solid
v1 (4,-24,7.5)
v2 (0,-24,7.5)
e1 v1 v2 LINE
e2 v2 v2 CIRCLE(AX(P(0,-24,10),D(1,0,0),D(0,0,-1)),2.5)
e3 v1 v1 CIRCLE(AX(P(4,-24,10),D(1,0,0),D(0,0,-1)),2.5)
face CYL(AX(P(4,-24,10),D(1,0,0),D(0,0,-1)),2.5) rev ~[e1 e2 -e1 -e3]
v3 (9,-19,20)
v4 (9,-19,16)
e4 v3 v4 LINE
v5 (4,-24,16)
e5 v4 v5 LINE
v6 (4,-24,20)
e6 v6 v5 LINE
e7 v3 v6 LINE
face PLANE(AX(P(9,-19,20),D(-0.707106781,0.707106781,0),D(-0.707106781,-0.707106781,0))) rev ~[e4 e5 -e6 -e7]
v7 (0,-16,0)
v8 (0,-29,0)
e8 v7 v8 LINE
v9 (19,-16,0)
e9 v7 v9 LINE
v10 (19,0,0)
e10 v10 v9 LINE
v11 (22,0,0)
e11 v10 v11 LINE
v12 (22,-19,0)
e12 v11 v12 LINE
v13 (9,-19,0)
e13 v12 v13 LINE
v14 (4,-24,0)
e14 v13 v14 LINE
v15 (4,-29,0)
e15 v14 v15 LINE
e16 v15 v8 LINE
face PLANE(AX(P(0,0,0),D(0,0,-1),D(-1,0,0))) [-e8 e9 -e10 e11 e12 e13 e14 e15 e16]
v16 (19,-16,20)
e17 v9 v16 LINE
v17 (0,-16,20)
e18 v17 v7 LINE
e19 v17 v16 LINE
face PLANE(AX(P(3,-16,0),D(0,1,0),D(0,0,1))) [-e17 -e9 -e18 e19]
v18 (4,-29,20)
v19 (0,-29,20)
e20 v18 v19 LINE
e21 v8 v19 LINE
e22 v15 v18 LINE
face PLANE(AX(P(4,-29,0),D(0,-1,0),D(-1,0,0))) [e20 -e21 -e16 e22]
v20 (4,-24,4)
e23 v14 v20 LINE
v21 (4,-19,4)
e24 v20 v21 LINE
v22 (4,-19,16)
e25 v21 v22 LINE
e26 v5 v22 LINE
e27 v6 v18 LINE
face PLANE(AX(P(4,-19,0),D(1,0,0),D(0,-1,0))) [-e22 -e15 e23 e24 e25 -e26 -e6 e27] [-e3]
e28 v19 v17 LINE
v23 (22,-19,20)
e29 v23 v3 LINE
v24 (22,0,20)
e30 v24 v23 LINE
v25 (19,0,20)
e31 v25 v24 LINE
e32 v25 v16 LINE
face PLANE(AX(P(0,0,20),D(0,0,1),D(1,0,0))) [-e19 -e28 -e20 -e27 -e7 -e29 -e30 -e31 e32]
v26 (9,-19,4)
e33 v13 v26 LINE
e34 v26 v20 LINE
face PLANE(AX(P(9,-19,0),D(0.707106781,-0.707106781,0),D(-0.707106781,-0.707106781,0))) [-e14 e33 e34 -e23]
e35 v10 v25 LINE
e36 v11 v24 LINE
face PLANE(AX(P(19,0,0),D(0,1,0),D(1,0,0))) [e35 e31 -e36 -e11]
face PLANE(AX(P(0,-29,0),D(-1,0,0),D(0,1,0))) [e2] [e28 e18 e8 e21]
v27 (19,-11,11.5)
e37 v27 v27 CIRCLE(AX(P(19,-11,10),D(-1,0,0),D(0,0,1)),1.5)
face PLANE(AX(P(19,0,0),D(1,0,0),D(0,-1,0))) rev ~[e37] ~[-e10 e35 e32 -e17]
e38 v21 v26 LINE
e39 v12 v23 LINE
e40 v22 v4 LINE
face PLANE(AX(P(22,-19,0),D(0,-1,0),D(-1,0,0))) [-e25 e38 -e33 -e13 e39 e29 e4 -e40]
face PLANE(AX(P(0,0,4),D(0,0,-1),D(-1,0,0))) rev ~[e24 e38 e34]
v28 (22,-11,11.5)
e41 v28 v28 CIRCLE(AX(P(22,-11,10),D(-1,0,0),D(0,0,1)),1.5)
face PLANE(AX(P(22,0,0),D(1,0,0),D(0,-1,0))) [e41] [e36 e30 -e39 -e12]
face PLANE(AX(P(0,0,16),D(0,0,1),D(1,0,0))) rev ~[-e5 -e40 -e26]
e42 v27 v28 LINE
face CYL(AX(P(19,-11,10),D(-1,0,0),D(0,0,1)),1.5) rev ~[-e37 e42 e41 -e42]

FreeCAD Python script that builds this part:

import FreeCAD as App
import Part
import Sketcher
from FreeCAD import Vector


def add_polygon(sketch, points):
    """Adds a closed chain of lines whose ends are joined by coincident constraints."""
    first, n = sketch.GeometryCount, len(points)
    for a, b in zip(points, points[1:] + points[:1]):
        sketch.addGeometry(Part.LineSegment(App.Vector(*a, 0), App.Vector(*b, 0)), False)
    for i in range(n):
        sketch.addConstraint(Sketcher.Constraint("Coincident", first + i, 2, first + (i + 1) % n, 1))

doc = App.newDocument("Part")
params = doc.addObject("Spreadsheet::Sheet", "Params")
for row, (alias, value) in enumerate([
    ("sketch1_width", "3 mm"),
    ("sketch1_width2", "22 mm"),
    ("sketch1_height", "19 mm"),
    ("pad1_length", "20 mm"),
    ("sketch2_width", "16 mm"),
    ("sketch2_height", "20 mm"),
    ("sketch3_width", "4 mm"),
    ("sketch3_height", "10 mm"),
    ("pad2_length", "20 mm"),
    ("sketch4_diameter", "5 mm"),
    ("sketch5_width", "5 mm"),
    ("pad3_length", "4 mm"),
    ("sketch6_width", "5 mm"),
    ("pad4_length", "4 mm"),
    ("sketch7_diameter", "3 mm"),
], start=1):
    params.set(f"A{row}", alias)
    params.set(f"B{row}", "=" + value)
    params.setAlias(f"B{row}", alias)

body = doc.addObject("PartDesign::Body", "Body")

sketch1 = body.newObject("Sketcher::SketchObject", "Sketch")
sketch1.AttachmentSupport = (doc.getObject("XY_Plane"), [""])
sketch1.MapMode = "FlatFace"
add_polygon(sketch1, [(3, 0), (0, 0), (0, -19), (22, -19), (22, 0), (19, 0), (19, -16), (3, -16)])
sketch1.addConstraint([
    Sketcher.Constraint("Horizontal", 0),
    Sketcher.Constraint("Vertical", 1),
    Sketcher.Constraint("Horizontal", 2),
    Sketcher.Constraint("Vertical", 3),
    Sketcher.Constraint("Horizontal", 4),
    Sketcher.Constraint("Vertical", 5),
    Sketcher.Constraint("Horizontal", 6),
    Sketcher.Constraint("Vertical", 7),
    Sketcher.Constraint("Coincident", 0, 2, -1, 1),
    Sketcher.Constraint("PointOnObject", 3, 2, -1),
    Sketcher.Constraint("Equal", 0, 4),
    Sketcher.Constraint("Equal", 6, 5),
    Sketcher.Constraint("DistanceX", 0, 2, 0, 1, 3.0),
    Sketcher.Constraint("DistanceX", 2, 1, 2, 2, 22.0),
    Sketcher.Constraint("DistanceY", 1, 2, 1, 1, 19.0),
])
sketch1.setExpression("Constraints[20]", "Params.sketch1_width")
sketch1.setExpression("Constraints[21]", "Params.sketch1_width2")
sketch1.setExpression("Constraints[22]", "Params.sketch1_height")
pad1 = body.newObject("PartDesign::Pad", "Pad")
pad1.Profile = sketch1
pad1.setExpression("Length", "Params.pad1_length")

sketch2 = body.newObject("Sketcher::SketchObject", "Sketch001")
sketch2.AttachmentSupport = (doc.getObject("YZ_Plane"), [""])
sketch2.MapMode = "FlatFace"
sketch2.AttachmentOffset = App.Placement(Vector(0, 0, 3), App.Rotation())
add_polygon(sketch2, [(0, 20), (-16, 20), (-16, 0), (0, 0)])
sketch2.addConstraint([
    Sketcher.Constraint("Horizontal", 0),
    Sketcher.Constraint("Vertical", 1),
    Sketcher.Constraint("Horizontal", 2),
    Sketcher.Constraint("Vertical", 3),
    Sketcher.Constraint("Coincident", 2, 2, -1, 1),
    Sketcher.Constraint("DistanceX", 0, 2, 0, 1, 16.0),
    Sketcher.Constraint("DistanceY", 1, 2, 1, 1, 20.0),
])
sketch2.setExpression("Constraints[9]", "Params.sketch2_width")
sketch2.setExpression("Constraints[10]", "Params.sketch2_height")
pocket1 = body.newObject("PartDesign::Pocket", "Pocket")
pocket1.Profile = sketch2
pocket1.Type = "ThroughAll"

sketch3 = body.newObject("Sketcher::SketchObject", "Sketch002")
sketch3.AttachmentSupport = (doc.getObject("XY_Plane"), [""])
sketch3.MapMode = "FlatFace"
add_polygon(sketch3, [(0, -29), (0, -19), (4, -19), (4, -29)])
sketch3.addConstraint([
    Sketcher.Constraint("Vertical", 0),
    Sketcher.Constraint("Horizontal", 1),
    Sketcher.Constraint("Vertical", 2),
    Sketcher.Constraint("Horizontal", 3),
    Sketcher.Constraint("PointOnObject", 0, 2, -2),
    Sketcher.Constraint("DistanceX", 1, 1, 1, 2, 4.0),
    Sketcher.Constraint("DistanceY", 0, 1, 0, 2, 10.0),
    Sketcher.Constraint("DistanceY", 0, 2, -1, 1, 19.0),
])
sketch3.setExpression("Constraints[9]", "Params.sketch3_width")
sketch3.setExpression("Constraints[10]", "Params.sketch3_height")
pad2 = body.newObject("PartDesign::Pad", "Pad001")
pad2.Profile = sketch3
pad2.setExpression("Length", "Params.pad2_length")

sketch4 = body.newObject("Sketcher::SketchObject", "Sketch003")
sketch4.AttachmentSupport = (doc.getObject("YZ_Plane"), [""])
sketch4.MapMode = "FlatFace"
sketch4.AttachmentOffset = App.Placement(Vector(0, 0, 4), App.Rotation())
sketch4.addGeometry(Part.Circle(Vector(-24, 10, 0), Vector(0, 0, 1), 2.5), False)
sketch4.addConstraint([
    Sketcher.Constraint("Diameter", 0, 5.0),
    Sketcher.Constraint("DistanceY", -1, 1, 0, 3, 10.0),
    Sketcher.Constraint("DistanceX", 0, 3, -1, 1, 24.0),
])
sketch4.setExpression("Constraints[0]", "Params.sketch4_diameter")
pocket2 = body.newObject("PartDesign::Pocket", "Pocket001")
pocket2.Profile = sketch4
pocket2.Type = "ThroughAll"

sketch5 = body.newObject("Sketcher::SketchObject", "Sketch004")
sketch5.AttachmentSupport = (doc.getObject("XY_Plane"), [""])
sketch5.MapMode = "FlatFace"
add_polygon(sketch5, [(4, -24), (4, -19), (9, -19)])
sketch5.addConstraint([
    Sketcher.Constraint("Vertical", 0),
    Sketcher.Constraint("Horizontal", 1),
    Sketcher.Constraint("Equal", 1, 0),
    Sketcher.Constraint("DistanceX", 1, 1, 1, 2, 5.0),
    Sketcher.Constraint("DistanceX", -1, 1, 0, 2, 4.0),
    Sketcher.Constraint("DistanceY", 0, 2, -1, 1, 19.0),
])
sketch5.setExpression("Constraints[6]", "Params.sketch5_width")
pad3 = body.newObject("PartDesign::Pad", "Pad002")
pad3.Profile = sketch5
pad3.setExpression("Length", "Params.pad3_length")

sketch6 = body.newObject("Sketcher::SketchObject", "Sketch005")
sketch6.AttachmentSupport = (doc.getObject("XY_Plane"), [""])
sketch6.MapMode = "FlatFace"
sketch6.AttachmentOffset = App.Placement(Vector(0, 0, 20), App.Rotation())
add_polygon(sketch6, [(9, -19), (4, -19), (4, -24)])
sketch6.addConstraint([
    Sketcher.Constraint("Horizontal", 0),
    Sketcher.Constraint("Vertical", 1),
    Sketcher.Constraint("Equal", 0, 1),
    Sketcher.Constraint("DistanceX", 0, 2, 0, 1, 5.0),
    Sketcher.Constraint("DistanceX", -1, 1, 0, 2, 4.0),
    Sketcher.Constraint("DistanceY", 0, 2, -1, 1, 19.0),
])
sketch6.setExpression("Constraints[6]", "Params.sketch6_width")
pad4 = body.newObject("PartDesign::Pad", "Pad003")
pad4.Profile = sketch6
pad4.setExpression("Length", "Params.pad4_length")
pad4.Reversed = True

sketch7 = body.newObject("Sketcher::SketchObject", "Sketch006")
sketch7.AttachmentSupport = (doc.getObject("YZ_Plane"), [""])
sketch7.MapMode = "FlatFace"
sketch7.AttachmentOffset = App.Placement(Vector(0, 0, 19), App.Rotation())
sketch7.addGeometry(Part.Circle(Vector(-11, 10, 0), Vector(0, 0, 1), 1.5), False)
sketch7.addConstraint([
    Sketcher.Constraint("Diameter", 0, 3.0),
    Sketcher.Constraint("DistanceY", -1, 1, 0, 3, 10.0),
    Sketcher.Constraint("DistanceX", 0, 3, -1, 1, 11.0),
])
sketch7.setExpression("Constraints[0]", "Params.sketch7_diameter")
pocket3 = body.newObject("PartDesign::Pocket", "Pocket002")
pocket3.Profile = sketch7
pocket3.Type = "ThroughAll"
pocket3.Reversed = True

doc.recompute()
